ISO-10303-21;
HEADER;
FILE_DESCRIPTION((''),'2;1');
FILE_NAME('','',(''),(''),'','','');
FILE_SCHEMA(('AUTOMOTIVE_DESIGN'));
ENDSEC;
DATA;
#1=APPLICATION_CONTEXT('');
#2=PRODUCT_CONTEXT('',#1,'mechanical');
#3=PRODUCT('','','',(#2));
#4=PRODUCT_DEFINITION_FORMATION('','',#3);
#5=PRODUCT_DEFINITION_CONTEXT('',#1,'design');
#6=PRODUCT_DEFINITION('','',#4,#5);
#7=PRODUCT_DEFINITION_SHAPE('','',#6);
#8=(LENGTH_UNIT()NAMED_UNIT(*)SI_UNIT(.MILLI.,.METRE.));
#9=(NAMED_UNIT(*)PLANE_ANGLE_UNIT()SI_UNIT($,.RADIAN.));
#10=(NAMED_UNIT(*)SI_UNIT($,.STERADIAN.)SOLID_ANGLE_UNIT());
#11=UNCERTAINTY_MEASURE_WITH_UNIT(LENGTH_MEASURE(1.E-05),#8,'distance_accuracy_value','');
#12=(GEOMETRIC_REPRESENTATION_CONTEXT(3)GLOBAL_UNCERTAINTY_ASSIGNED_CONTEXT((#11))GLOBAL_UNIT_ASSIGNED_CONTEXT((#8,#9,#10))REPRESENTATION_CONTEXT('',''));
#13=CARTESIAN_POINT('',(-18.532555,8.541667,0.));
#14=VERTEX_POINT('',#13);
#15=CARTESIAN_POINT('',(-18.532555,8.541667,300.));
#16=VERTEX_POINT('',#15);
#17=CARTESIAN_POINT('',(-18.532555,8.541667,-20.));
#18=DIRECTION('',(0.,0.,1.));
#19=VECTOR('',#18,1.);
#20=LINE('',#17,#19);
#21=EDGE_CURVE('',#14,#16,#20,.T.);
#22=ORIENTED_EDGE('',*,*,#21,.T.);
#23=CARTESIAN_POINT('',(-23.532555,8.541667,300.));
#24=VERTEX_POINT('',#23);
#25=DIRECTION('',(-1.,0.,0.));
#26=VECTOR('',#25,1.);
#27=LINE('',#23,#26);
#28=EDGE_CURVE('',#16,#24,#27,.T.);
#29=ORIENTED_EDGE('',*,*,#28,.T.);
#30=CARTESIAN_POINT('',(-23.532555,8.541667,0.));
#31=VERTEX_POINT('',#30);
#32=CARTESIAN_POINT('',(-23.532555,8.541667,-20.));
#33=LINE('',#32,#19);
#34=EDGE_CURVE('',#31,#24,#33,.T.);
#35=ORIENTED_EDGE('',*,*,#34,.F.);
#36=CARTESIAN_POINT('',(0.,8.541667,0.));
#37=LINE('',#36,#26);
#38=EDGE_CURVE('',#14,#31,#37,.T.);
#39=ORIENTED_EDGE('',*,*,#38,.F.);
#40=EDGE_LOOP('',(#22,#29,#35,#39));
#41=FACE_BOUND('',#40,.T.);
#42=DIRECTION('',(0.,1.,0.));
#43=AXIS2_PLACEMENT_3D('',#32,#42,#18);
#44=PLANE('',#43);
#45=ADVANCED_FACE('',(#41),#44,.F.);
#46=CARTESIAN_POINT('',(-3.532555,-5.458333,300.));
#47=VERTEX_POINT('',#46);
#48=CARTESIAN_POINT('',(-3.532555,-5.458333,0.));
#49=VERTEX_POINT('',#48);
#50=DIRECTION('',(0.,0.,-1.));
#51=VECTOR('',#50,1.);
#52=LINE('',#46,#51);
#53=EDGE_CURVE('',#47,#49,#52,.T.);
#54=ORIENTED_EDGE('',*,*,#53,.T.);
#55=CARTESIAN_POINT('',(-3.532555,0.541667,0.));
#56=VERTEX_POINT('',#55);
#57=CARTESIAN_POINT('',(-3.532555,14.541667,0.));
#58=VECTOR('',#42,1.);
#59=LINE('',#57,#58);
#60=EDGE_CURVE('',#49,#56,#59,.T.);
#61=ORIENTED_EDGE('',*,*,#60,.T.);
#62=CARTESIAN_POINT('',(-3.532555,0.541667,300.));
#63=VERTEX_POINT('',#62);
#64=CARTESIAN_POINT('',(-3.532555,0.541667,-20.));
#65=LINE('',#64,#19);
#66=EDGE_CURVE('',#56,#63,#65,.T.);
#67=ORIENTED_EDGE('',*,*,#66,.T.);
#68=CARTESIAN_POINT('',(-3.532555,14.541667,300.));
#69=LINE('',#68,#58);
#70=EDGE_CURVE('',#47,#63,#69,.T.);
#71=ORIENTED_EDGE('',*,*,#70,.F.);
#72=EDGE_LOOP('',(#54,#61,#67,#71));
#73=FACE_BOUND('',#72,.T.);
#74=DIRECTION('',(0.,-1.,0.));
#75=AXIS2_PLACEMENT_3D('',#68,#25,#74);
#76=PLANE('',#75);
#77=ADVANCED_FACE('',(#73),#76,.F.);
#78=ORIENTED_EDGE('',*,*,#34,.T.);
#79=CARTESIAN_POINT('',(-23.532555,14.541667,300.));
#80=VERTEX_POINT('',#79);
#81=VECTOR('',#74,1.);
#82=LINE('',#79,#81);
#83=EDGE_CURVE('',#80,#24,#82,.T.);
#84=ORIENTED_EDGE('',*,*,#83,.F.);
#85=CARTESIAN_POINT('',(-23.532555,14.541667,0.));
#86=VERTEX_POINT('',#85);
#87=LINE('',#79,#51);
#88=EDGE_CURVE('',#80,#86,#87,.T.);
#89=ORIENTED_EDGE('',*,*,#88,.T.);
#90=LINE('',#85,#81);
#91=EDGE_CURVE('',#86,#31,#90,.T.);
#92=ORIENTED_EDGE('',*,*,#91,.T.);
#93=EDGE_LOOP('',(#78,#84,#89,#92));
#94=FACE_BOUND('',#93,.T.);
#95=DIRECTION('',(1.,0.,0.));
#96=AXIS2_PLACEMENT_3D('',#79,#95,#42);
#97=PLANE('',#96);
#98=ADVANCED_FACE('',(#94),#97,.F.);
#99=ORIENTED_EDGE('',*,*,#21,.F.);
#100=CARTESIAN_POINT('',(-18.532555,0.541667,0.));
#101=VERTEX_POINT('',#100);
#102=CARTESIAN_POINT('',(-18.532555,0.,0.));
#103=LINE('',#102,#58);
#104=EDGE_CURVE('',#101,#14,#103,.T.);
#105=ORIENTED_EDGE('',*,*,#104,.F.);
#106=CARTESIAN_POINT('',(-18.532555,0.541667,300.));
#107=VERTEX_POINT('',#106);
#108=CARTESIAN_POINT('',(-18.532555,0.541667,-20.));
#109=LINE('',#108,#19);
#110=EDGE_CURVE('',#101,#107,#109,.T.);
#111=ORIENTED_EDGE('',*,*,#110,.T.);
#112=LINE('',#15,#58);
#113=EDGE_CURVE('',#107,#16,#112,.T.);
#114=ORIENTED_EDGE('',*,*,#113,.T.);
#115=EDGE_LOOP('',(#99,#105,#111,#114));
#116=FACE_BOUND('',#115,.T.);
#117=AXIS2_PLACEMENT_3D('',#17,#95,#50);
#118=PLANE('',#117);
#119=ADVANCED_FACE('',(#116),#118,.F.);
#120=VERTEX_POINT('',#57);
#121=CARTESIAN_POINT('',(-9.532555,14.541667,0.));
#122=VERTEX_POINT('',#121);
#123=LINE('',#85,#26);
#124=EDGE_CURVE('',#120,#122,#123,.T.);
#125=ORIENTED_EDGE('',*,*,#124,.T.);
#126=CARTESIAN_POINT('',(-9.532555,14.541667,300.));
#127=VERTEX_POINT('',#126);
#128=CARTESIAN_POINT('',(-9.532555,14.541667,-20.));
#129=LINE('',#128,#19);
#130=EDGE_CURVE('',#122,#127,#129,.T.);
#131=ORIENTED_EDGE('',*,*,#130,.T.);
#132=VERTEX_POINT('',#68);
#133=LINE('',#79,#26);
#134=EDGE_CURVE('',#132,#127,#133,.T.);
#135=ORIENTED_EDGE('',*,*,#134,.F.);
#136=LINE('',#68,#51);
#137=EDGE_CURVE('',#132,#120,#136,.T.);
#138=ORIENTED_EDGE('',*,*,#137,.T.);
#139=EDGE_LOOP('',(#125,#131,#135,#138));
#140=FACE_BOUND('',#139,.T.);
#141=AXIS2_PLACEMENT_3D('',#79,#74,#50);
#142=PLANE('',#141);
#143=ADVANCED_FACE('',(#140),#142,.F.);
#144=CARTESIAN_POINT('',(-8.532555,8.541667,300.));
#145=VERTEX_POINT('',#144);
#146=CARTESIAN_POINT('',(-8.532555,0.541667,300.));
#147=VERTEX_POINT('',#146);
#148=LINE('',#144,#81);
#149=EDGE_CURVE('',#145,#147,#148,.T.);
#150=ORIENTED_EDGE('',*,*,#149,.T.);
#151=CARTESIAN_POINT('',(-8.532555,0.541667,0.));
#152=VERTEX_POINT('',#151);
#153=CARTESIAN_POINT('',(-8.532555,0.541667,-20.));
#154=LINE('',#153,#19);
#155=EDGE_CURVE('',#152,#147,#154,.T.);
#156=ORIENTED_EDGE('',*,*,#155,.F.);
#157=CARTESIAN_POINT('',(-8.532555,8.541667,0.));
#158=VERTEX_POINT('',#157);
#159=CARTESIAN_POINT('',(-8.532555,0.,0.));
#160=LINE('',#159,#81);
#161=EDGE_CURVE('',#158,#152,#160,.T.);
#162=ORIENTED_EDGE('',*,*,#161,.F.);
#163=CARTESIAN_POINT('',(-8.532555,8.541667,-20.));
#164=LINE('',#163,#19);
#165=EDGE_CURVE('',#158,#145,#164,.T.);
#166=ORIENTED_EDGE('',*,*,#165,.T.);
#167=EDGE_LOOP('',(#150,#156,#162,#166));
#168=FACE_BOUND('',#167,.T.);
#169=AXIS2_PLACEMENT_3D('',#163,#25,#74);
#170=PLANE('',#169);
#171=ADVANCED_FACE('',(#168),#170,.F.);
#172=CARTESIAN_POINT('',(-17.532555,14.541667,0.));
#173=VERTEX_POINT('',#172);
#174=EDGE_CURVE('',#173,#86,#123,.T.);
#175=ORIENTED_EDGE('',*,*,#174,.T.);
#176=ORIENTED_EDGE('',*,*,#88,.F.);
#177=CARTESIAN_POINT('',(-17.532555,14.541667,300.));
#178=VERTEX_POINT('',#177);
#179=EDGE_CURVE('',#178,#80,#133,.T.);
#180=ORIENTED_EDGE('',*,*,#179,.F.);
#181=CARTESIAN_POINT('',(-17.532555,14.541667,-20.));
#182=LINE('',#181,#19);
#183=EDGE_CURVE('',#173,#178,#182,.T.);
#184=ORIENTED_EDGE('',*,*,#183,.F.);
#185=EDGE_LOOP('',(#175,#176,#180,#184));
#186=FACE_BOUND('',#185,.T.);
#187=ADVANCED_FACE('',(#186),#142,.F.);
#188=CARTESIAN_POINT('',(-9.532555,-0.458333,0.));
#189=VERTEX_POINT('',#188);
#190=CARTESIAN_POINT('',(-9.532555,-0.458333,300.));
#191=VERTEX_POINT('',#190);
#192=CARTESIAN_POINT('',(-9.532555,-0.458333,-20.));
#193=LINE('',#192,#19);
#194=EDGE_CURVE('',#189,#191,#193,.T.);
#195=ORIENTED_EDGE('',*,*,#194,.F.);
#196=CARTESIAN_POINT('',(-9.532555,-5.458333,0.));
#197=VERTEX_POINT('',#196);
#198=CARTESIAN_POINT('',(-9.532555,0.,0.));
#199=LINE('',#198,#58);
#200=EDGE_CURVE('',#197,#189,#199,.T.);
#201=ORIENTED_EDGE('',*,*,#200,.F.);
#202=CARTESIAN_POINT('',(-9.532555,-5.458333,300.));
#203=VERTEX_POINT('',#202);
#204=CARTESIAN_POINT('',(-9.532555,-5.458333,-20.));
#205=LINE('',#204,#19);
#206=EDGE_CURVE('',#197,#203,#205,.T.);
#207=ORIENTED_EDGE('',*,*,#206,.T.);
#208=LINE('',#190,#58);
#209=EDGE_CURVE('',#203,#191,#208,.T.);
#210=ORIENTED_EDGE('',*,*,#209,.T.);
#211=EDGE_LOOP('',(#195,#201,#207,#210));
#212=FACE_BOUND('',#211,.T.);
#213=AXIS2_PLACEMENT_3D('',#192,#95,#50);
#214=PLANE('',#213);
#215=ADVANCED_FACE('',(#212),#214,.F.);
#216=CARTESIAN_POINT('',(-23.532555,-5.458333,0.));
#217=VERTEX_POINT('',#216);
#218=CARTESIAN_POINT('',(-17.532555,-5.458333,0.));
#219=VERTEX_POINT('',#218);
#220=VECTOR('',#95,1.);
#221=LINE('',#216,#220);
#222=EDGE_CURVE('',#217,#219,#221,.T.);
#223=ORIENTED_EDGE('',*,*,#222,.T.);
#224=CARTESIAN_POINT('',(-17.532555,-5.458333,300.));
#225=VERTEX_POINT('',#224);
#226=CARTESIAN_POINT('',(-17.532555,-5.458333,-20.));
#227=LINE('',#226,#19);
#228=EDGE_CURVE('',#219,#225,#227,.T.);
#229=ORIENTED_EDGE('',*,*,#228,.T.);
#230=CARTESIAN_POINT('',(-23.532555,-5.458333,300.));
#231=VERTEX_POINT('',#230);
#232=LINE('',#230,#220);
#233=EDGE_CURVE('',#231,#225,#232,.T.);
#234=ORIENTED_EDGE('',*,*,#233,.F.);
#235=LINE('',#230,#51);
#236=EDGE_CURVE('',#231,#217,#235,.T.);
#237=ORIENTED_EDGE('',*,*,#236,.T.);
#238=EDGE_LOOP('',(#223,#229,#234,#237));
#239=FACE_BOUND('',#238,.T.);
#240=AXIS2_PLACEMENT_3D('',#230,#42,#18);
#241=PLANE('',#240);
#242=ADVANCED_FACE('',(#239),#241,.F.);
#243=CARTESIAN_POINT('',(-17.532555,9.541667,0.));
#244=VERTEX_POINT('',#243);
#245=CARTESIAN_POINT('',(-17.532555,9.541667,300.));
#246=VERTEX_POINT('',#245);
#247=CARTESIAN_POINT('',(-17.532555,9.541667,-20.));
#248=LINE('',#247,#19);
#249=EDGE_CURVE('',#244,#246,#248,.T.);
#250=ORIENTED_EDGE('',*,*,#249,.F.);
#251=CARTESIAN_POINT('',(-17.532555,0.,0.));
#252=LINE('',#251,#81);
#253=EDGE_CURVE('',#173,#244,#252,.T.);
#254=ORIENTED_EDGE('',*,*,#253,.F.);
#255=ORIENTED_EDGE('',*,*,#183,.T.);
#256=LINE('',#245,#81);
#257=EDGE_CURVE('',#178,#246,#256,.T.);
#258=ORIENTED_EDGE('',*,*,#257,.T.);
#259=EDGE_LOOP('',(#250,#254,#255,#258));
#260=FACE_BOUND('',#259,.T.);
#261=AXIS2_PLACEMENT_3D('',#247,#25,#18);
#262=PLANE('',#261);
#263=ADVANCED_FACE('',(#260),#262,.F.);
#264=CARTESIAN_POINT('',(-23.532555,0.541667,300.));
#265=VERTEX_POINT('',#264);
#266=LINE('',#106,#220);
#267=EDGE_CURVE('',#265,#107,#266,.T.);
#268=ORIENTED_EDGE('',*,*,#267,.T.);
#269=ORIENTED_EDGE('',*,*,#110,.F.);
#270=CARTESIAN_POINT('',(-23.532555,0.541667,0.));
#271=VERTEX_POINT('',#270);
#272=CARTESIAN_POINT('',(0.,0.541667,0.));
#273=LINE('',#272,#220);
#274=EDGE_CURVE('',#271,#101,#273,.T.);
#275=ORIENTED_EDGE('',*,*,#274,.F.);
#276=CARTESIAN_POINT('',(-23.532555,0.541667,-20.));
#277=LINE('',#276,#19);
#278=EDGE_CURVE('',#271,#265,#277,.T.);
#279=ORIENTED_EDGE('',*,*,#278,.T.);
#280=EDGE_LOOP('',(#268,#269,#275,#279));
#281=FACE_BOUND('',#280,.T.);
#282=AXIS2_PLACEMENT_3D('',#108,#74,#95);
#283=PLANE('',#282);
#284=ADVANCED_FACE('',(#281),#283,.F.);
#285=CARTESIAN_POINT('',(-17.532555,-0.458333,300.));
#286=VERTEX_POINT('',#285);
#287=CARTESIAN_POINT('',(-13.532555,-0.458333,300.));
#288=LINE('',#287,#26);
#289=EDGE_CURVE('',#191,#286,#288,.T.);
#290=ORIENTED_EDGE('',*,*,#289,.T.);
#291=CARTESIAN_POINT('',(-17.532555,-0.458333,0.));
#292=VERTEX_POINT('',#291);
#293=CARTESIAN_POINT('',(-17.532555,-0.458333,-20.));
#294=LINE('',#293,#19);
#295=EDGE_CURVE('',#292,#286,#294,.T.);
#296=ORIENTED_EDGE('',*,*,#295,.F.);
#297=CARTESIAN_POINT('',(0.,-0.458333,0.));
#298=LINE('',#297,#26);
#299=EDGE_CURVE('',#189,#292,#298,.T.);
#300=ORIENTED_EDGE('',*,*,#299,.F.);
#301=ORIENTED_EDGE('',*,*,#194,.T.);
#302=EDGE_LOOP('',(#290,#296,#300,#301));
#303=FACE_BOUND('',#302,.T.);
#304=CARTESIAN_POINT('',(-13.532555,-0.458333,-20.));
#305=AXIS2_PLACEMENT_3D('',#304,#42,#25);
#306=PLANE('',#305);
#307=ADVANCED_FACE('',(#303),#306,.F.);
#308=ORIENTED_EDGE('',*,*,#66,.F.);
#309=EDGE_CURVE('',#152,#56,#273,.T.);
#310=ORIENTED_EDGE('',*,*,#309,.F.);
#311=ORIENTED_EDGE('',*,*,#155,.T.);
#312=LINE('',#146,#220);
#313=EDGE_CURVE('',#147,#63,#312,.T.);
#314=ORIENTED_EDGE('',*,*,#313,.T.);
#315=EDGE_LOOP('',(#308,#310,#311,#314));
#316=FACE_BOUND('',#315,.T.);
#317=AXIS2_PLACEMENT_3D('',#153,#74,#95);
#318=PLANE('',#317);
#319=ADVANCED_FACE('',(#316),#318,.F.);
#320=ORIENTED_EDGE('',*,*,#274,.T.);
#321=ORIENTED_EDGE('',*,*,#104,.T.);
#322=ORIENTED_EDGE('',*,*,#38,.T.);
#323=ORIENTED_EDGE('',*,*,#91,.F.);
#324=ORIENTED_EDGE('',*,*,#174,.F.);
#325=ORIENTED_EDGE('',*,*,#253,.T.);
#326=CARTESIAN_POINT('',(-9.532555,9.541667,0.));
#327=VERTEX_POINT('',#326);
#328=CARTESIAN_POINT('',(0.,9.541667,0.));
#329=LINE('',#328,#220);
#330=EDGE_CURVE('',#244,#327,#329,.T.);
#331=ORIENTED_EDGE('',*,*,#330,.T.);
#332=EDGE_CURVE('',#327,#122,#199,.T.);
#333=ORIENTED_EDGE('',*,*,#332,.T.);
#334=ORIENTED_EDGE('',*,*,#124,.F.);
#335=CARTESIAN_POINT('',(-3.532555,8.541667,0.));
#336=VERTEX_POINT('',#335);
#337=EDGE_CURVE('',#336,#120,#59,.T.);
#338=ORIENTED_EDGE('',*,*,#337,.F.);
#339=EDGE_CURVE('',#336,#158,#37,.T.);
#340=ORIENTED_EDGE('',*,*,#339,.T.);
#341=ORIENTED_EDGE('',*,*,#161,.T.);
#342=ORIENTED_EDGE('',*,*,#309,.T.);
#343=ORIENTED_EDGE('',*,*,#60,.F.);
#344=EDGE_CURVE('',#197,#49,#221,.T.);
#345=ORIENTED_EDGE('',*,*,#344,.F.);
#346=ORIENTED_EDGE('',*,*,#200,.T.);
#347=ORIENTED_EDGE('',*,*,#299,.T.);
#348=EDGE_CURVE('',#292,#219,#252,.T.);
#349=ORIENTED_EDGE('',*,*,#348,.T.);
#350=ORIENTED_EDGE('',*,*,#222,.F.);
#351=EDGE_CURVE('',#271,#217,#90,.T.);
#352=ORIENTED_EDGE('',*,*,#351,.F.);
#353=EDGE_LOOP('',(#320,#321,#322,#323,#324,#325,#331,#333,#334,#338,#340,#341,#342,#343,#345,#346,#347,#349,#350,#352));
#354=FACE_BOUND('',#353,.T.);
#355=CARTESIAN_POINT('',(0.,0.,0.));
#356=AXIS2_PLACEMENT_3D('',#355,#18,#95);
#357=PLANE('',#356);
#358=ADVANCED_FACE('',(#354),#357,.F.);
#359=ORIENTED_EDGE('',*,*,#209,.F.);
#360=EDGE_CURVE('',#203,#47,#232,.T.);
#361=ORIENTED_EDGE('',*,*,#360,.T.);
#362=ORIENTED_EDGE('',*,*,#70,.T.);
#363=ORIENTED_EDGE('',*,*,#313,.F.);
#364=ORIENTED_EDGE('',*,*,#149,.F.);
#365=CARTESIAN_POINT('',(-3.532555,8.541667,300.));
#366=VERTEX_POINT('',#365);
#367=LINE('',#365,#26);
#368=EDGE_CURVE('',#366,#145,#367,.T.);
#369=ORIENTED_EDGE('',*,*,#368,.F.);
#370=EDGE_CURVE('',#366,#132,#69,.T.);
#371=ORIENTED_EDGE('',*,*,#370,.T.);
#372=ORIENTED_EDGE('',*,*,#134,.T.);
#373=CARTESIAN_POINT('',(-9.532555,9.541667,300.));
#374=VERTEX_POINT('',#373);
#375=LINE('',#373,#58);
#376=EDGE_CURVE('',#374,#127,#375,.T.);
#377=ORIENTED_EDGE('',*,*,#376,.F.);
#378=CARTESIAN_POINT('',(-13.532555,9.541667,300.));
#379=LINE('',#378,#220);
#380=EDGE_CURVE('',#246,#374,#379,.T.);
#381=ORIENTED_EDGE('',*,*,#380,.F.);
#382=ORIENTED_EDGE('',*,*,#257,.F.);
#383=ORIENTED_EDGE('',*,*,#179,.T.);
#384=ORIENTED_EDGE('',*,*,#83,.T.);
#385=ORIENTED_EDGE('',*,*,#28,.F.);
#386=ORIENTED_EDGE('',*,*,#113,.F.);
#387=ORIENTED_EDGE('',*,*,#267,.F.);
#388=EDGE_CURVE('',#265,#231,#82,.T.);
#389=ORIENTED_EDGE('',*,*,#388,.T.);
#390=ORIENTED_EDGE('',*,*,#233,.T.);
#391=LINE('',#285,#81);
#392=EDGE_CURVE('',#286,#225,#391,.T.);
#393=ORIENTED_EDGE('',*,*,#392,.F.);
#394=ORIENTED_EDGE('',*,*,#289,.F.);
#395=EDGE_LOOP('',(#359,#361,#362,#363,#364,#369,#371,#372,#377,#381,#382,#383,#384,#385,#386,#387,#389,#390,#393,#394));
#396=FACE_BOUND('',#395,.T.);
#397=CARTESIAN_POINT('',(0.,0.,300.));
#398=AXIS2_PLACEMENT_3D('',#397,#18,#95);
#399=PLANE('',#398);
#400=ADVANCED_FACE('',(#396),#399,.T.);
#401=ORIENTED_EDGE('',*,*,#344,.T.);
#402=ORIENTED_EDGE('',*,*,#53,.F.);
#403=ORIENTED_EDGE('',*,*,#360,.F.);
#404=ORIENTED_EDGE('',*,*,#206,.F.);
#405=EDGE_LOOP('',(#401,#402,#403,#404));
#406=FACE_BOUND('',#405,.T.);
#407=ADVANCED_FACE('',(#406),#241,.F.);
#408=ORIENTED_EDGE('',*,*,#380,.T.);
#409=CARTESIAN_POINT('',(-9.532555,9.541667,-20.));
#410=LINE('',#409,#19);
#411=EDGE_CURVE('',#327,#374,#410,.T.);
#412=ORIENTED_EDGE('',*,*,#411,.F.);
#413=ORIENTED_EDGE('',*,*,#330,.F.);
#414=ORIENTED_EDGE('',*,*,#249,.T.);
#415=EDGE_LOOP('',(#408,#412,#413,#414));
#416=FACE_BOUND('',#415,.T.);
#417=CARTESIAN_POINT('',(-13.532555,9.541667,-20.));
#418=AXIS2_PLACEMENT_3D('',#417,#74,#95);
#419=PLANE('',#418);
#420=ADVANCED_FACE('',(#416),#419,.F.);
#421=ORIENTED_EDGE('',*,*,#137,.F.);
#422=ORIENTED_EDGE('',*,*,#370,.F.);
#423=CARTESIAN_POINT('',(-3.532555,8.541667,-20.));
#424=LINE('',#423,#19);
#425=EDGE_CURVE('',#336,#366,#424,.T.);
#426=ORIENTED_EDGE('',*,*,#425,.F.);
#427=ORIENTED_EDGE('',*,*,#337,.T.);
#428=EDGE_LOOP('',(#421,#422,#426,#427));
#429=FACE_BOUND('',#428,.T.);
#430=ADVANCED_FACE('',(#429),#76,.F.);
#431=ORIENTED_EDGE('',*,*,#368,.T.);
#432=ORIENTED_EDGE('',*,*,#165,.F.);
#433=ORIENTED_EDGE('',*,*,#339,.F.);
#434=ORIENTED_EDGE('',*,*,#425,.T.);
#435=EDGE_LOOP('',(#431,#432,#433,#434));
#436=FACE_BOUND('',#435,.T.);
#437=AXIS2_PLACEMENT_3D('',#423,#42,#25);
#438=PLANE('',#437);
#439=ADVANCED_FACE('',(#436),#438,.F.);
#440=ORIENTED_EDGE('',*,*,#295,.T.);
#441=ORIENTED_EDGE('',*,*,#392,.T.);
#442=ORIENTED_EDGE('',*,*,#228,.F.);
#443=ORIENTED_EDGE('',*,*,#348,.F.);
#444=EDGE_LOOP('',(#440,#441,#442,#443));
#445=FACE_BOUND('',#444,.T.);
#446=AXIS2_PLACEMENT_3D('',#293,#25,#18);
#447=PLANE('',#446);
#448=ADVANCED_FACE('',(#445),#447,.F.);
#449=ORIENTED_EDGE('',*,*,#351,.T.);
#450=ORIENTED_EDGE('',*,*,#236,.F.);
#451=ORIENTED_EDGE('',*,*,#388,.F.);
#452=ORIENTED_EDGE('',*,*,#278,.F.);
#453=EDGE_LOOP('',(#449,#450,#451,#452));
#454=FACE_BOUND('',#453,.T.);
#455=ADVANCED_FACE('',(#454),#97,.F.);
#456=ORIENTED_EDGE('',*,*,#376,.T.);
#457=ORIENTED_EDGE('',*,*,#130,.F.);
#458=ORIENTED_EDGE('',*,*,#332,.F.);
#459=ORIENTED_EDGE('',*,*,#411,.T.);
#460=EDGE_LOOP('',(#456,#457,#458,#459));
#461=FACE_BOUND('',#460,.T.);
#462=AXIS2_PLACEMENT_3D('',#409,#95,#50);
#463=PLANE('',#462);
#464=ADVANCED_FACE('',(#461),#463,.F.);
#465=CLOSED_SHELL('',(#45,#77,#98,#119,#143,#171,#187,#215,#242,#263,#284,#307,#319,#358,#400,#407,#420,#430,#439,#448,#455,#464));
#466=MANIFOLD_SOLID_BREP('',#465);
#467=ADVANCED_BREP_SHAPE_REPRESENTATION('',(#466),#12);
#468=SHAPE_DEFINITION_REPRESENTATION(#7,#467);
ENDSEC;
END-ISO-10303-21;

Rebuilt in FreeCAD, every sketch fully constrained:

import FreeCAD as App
import Part
import Sketcher

V = App.Vector


def add_polygon(sketch, points):
    """Adds a closed chain of lines whose ends are joined by coincident constraints."""
    first, n = sketch.GeometryCount, len(points)
    for a, b in zip(points, points[1:] + points[:1]):
        sketch.addGeometry(Part.LineSegment(App.Vector(*a, 0), App.Vector(*b, 0)), False)
    for i in range(n):
        sketch.addConstraint(Sketcher.Constraint("Coincident", first + i, 2, first + (i + 1) % n, 1))

doc = App.newDocument("Part")
body = doc.addObject("PartDesign::Body", "Body")

sketch1 = doc.addObject("Sketcher::SketchObject", "Sketch")
body.addObject(sketch1)
sketch1.AttachmentSupport = (doc.XY_Plane, [""])
sketch1.MapMode = "FlatFace"
add_polygon(sketch1, [(-24, 15), (-24, -5), (-4, -5), (-4, 15)])
sketch1.addConstraint([
    Sketcher.Constraint("Vertical", 0),
    Sketcher.Constraint("Horizontal", 1),
    Sketcher.Constraint("Vertical", 2),
    Sketcher.Constraint("Horizontal", 3),
    Sketcher.Constraint("Equal", 3, 0),
    Sketcher.Constraint("DistanceX", 1, 1, 1, 2, 20.0),
    Sketcher.Constraint("DistanceX", 0, 2, -1, 1, 23.532555),
    Sketcher.Constraint("DistanceY", 0, 2, -1, 1, 5.458333),
])
pad1 = doc.addObject("PartDesign::Pad", "Pad")
body.addObject(pad1)
pad1.Profile = sketch1
pad1.Length = 300

sketch2 = doc.addObject("Sketcher::SketchObject", "Sketch001")
body.addObject(sketch2)
sketch2.AttachmentSupport = (doc.XY_Plane, [""])
sketch2.MapMode = "FlatFace"
sketch2.AttachmentOffset = App.Placement(V(0, 0, 300), App.Rotation())
add_polygon(sketch2, [(-18, 10), (-10, 10), (-10, 15), (-18, 15)])
add_polygon(sketch2, [(-10, -5), (-10, 0), (-18, 0), (-18, -5)])
add_polygon(sketch2, [(-24, 9), (-24, 1), (-19, 1), (-19, 9)])
add_polygon(sketch2, [(-9, 9), (-9, 1), (-4, 1), (-4, 9)])
sketch2.addConstraint([
    Sketcher.Constraint("Horizontal", 0),
    Sketcher.Constraint("Vertical", 1),
    Sketcher.Constraint("Horizontal", 2),
    Sketcher.Constraint("Vertical", 3),
    Sketcher.Constraint("Vertical", 4),
    Sketcher.Constraint("Horizontal", 5),
    Sketcher.Constraint("Vertical", 6),
    Sketcher.Constraint("Horizontal", 7),
    Sketcher.Constraint("Vertical", 8),
    Sketcher.Constraint("Horizontal", 9),
    Sketcher.Constraint("Vertical", 10),
    Sketcher.Constraint("Horizontal", 11),
    Sketcher.Constraint("Vertical", 12),
    Sketcher.Constraint("Horizontal", 13),
    Sketcher.Constraint("Vertical", 14),
    Sketcher.Constraint("Horizontal", 15),
    Sketcher.Constraint("Horizontal", 9, 2, 12, 2),
    Sketcher.Constraint("Horizontal", 11, 2, 14, 2),
    Sketcher.Constraint("Vertical", 1, 2, 4, 2),
    Sketcher.Constraint("Vertical", 3, 2, 5, 2),
    Sketcher.Constraint("Equal", 11, 13),
    Sketcher.Constraint("Equal", 15, 1),
    Sketcher.Constraint("Equal", 3, 4),
    Sketcher.Constraint("Equal", 7, 8),
    Sketcher.Constraint("DistanceX", 0, 1, 0, 2, 8.0),
    Sketcher.Constraint("DistanceX", 9, 1, 9, 2, 5.0),
    Sketcher.Constraint("DistanceY", 4, 2, 0, 2, 10.0),
    Sketcher.Constraint("DistanceX", 8, 2, 5, 2, 6.0),
    Sketcher.Constraint("DistanceY", 5, 2, 8, 2, 1.0),
    Sketcher.Constraint("DistanceX", 4, 2, 12, 2, 1.0),
    Sketcher.Constraint("DistanceX", 0, 2, -1, 1, 9.532555),
    Sketcher.Constraint("DistanceY", -1, 1, 0, 2, 9.541667),
])
pocket1 = doc.addObject("PartDesign::Pocket", "Pocket")
body.addObject(pocket1)
pocket1.Profile = sketch2
pocket1.Length = 320

doc.recompute()
